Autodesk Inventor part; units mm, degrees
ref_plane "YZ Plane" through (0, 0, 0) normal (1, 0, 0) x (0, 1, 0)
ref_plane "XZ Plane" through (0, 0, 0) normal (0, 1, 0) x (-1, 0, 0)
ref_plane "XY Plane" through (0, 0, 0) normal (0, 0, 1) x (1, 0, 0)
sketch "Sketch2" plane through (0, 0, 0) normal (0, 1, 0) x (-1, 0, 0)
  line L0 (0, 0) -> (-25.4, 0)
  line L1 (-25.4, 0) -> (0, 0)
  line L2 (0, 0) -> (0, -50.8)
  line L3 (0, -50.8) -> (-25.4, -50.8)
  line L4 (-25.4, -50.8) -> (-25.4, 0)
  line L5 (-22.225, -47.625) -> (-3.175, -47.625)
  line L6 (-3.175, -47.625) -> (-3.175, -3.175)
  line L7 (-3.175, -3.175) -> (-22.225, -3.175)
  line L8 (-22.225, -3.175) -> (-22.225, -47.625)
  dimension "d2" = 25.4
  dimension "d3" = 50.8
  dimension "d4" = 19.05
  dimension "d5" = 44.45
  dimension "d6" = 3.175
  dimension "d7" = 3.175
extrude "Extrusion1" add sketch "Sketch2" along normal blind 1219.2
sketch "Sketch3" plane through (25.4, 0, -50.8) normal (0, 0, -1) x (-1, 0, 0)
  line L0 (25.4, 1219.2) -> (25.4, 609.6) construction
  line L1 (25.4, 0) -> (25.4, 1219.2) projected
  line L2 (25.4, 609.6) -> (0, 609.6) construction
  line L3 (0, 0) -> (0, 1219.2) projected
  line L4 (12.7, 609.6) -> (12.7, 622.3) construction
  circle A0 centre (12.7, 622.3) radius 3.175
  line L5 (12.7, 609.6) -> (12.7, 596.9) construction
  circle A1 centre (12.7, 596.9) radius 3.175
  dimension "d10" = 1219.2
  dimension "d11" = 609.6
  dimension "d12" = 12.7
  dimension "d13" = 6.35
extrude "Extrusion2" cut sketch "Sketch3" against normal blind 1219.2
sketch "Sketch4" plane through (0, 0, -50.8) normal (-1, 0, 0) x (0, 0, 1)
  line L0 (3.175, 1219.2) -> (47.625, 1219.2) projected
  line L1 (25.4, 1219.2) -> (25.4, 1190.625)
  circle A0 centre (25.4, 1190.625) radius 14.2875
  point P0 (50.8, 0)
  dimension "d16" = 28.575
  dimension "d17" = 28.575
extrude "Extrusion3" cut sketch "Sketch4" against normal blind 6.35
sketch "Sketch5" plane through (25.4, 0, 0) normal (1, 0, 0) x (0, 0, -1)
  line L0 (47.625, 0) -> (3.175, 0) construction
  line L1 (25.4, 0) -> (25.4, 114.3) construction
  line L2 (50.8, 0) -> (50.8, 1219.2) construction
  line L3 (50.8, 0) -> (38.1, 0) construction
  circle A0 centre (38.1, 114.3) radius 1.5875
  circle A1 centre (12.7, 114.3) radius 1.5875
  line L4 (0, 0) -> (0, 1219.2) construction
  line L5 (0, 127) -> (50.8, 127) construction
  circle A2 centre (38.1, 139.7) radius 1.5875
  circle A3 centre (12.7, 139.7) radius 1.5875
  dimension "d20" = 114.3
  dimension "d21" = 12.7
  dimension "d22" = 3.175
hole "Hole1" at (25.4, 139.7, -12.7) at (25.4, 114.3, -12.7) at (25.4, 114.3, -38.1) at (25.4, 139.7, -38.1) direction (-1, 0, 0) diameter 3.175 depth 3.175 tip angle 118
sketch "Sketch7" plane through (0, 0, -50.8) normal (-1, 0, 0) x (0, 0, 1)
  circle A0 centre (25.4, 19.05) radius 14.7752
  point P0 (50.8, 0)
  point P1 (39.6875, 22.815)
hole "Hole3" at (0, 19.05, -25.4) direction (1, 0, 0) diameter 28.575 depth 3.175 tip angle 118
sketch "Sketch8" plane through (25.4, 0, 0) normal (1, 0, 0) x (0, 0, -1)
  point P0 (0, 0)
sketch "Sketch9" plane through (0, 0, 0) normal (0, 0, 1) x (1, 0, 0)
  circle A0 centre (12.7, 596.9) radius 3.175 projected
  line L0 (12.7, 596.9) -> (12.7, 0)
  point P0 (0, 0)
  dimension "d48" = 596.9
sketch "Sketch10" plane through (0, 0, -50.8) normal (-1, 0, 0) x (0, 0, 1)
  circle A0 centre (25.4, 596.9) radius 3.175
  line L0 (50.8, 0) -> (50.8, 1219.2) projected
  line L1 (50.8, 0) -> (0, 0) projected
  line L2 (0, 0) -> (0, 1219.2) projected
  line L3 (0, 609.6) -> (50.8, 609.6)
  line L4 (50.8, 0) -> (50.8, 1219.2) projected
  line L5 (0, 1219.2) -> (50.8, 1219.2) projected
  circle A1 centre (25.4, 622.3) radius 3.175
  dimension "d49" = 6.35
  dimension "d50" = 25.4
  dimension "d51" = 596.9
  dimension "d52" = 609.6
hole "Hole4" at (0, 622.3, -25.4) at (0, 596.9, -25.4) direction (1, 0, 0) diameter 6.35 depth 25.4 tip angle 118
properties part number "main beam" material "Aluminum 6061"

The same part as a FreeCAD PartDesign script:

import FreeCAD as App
import Part
import Sketcher

V = App.Vector
Q = App.Units.Quantity

doc = App.newDocument("Part")
params = doc.addObject("Spreadsheet::Sheet", "Params")
for row, (alias, value) in enumerate([
    ("sketch1_width", "1 in"),
    ("sketch1_height", "2 in"),
    ("sketch1_width2", "0.75 in"),
    ("sketch1_height2", "1.75 in"),
    ("pad1_length", "48 in"),
    ("sketch2_diameter", "0.25 in"),
    ("pocket1_length", "48 in"),
    ("sketch3_diameter", "1.125 in"),
    ("pocket2_length", "0.25 in"),
    ("sketch4_diameter", "0.125 in"),
    ("hole_diameter", "0.125 in"),
    ("hole_depth", "0.125 in"),
    ("sketch5_diameter", "1.125 in"),
    ("hole2_diameter", "1.125 in"),
    ("hole2_depth", "0.125 in"),
    ("sketch6_diameter", "0.25 in"),
    ("hole3_diameter", "0.25 in"),
    ("hole3_depth", "1 in"),
], start=1):
    params.set(f"A{row}", alias)
    params.set(f"B{row}", "=" + value)
    params.setAlias(f"B{row}", alias)

body = doc.addObject("PartDesign::Body", "Body")

# Sketch on XZ plane
sketch1 = body.newObject("Sketcher::SketchObject", "Sketch")
sketch1.AttachmentSupport = (doc.getObject("XZ_Plane"), [""])
sketch1.MapMode = "FlatFace"
sketch1.addGeometry([
    Part.LineSegment(V(0, -51, 0), V(0, 0, 0)),  # 0
    Part.LineSegment(V(0, 0, 0), V(25, 0, 0)),  # 1
    Part.LineSegment(V(25, 0, 0), V(25, -51, 0)),  # 2
    Part.LineSegment(V(25, -51, 0), V(0, -51, 0)),  # 3
    Part.LineSegment(V(3, -48, 0), V(22, -48, 0)),  # 4
    Part.LineSegment(V(22, -48, 0), V(22, -3, 0)),  # 5
    Part.LineSegment(V(22, -3, 0), V(3, -3, 0)),  # 6
    Part.LineSegment(V(3, -3, 0), V(3, -48, 0)),  # 7
], False)
sketch1.addConstraint([
    Sketcher.Constraint("Coincident", 0, 2, 1, 1),
    Sketcher.Constraint("Coincident", 1, 2, 2, 1),
    Sketcher.Constraint("Coincident", 2, 2, 3, 1),
    Sketcher.Constraint("Coincident", 3, 2, 0, 1),
    Sketcher.Constraint("Coincident", 4, 2, 5, 1),
    Sketcher.Constraint("Coincident", 5, 2, 6, 1),
    Sketcher.Constraint("Coincident", 6, 2, 7, 1),
    Sketcher.Constraint("Coincident", 7, 2, 4, 1),
    Sketcher.Constraint("Vertical", 0),
    Sketcher.Constraint("Horizontal", 1),
    Sketcher.Constraint("Vertical", 2),
    Sketcher.Constraint("Horizontal", 3),
    Sketcher.Constraint("Horizontal", 4),
    Sketcher.Constraint("Vertical", 5),
    Sketcher.Constraint("Horizontal", 6),
    Sketcher.Constraint("Vertical", 7),
    Sketcher.Constraint("Coincident", 0, 2, -1, 1),
    Sketcher.Constraint("DistanceX", 1, 1, 1, 2, Q("1 in")),
    Sketcher.Constraint("DistanceY", 0, 1, 0, 2, Q("2 in")),
    Sketcher.Constraint("DistanceX", 4, 1, 4, 2, Q("0.75 in")),
    Sketcher.Constraint("DistanceY", 5, 1, 5, 2, Q("1.75 in")),
    Sketcher.Constraint("DistanceY", 5, 2, -1, 1, Q("0.125 in")),
    Sketcher.Constraint("DistanceX", -1, 1, 6, 2, Q("0.125 in")),
])
sketch1.setExpression("Constraints[17]", "Params.sketch1_width")
sketch1.setExpression("Constraints[18]", "Params.sketch1_height")
sketch1.setExpression("Constraints[19]", "Params.sketch1_width2")
sketch1.setExpression("Constraints[20]", "Params.sketch1_height2")
pad1 = body.newObject("PartDesign::Pad", "Pad")
pad1.Profile = sketch1
pad1.setExpression("Length", "Params.pad1_length")
pad1.Reversed = True

# Sketch on XY plane
sketch2 = body.newObject("Sketcher::SketchObject", "Sketch001")
sketch2.AttachmentSupport = (doc.getObject("XY_Plane"), [""])
sketch2.MapMode = "FlatFace"
sketch2.AttachmentOffset = App.Placement(V(0, 0, -2 * 25.4), App.Rotation())
sketch2.addGeometry([
    Part.Circle(V(12.7, 622.3, 0), V(0, 0, 1), 3.2),
    Part.Circle(V(12.7, 596.9, 0), V(0, 0, 1), 3.2),
], False)
sketch2.addConstraint([
    Sketcher.Constraint("Equal", 0, 1),
    Sketcher.Constraint("Vertical", 0, 3, 1, 3),
    Sketcher.Constraint("Diameter", 0, Q("0.25 in")),
    Sketcher.Constraint("DistanceX", -1, 1, 0, 3, Q("0.5 in")),
    Sketcher.Constraint("DistanceY", 1, 3, 0, 3, Q("1 in")),
    Sketcher.Constraint("DistanceY", -1, 1, 0, 3, Q("24.5 in")),
])
sketch2.setExpression("Constraints[2]", "Params.sketch2_diameter")
pocket1 = body.newObject("PartDesign::Pocket", "Pocket")
pocket1.Profile = sketch2
pocket1.setExpression("Length", "Params.pocket1_length")
pocket1.Reversed = True

# Sketch on YZ plane
sketch3 = body.newObject("Sketcher::SketchObject", "Sketch002")
sketch3.AttachmentSupport = (doc.getObject("YZ_Plane"), [""])
sketch3.MapMode = "FlatFace"
sketch3.addGeometry(Part.Circle(V(1191, -25, 0), V(0, 0, 1), 14), False)
sketch3.addConstraint([
    Sketcher.Constraint("Diameter", 0, Q("1.125 in")),
    Sketcher.Constraint("DistanceY", 0, 3, -1, 1, Q("1 in")),
    Sketcher.Constraint("DistanceX", -1, 1, 0, 3, Q("46.875 in")),
])
sketch3.setExpression("Constraints[0]", "Params.sketch3_diameter")
pocket2 = body.newObject("PartDesign::Pocket", "Pocket001")
pocket2.Profile = sketch3
pocket2.setExpression("Length", "Params.pocket2_length")
pocket2.Reversed = True

# Sketch on YZ plane
sketch4 = body.newObject("Sketcher::SketchObject", "Sketch003")
sketch4.AttachmentSupport = (doc.getObject("YZ_Plane"), [""])
sketch4.MapMode = "FlatFace"
sketch4.AttachmentOffset = App.Placement(V(0, 0, 1 * 25.4), App.Rotation())
sketch4.addGeometry([
    Part.Circle(V(139.7, -12.7, 0), V(0, 0, 1), 1.6),
    Part.Circle(V(114.3, -12.7, 0), V(0, 0, 1), 1.6),
    Part.Circle(V(114.3, -38.1, 0), V(0, 0, 1), 1.6),
    Part.Circle(V(139.7, -38.1, 0), V(0, 0, 1), 1.6),
], False)
sketch4.addConstraint([
    Sketcher.Constraint("Equal", 0, 1),
    Sketcher.Constraint("Equal", 1, 2),
    Sketcher.Constraint("Equal", 2, 3),
    Sketcher.Constraint("Horizontal", 0, 3, 1, 3),
    Sketcher.Constraint("Horizontal", 2, 3, 3, 3),
    Sketcher.Constraint("Vertical", 1, 3, 2, 3),
    Sketcher.Constraint("Vertical", 0, 3, 3, 3),
    Sketcher.Constraint("Diameter", 0, Q("0.125 in")),
    Sketcher.Constraint("DistanceX", 1, 3, 0, 3, Q("1 in")),
    Sketcher.Constraint("DistanceY", 2, 3, 1, 3, Q("1 in")),
    Sketcher.Constraint("DistanceX", -1, 1, 0, 3, Q("5.5 in")),
    Sketcher.Constraint("DistanceY", 0, 3, -1, 1, Q("0.5 in")),
])
sketch4.setExpression("Constraints[7]", "Params.sketch4_diameter")
doc.recompute()
hole = body.newObject("PartDesign::Hole", "Hole")
hole.Profile = sketch4
hole.ThreadType = "None"
hole.setExpression("Diameter", "Params.hole_diameter")
hole.DepthType = "Dimension"
hole.setExpression("Depth", "Params.hole_depth")
hole.DrillPoint = "Angled"
hole.DrillPointAngle = 118

# Sketch on YZ plane
sketch5 = body.newObject("Sketcher::SketchObject", "Sketch004")
sketch5.AttachmentSupport = (doc.getObject("YZ_Plane"), [""])
sketch5.MapMode = "FlatFace"
sketch5.addGeometry(Part.Circle(V(19, -25, 0), V(0, 0, 1), 14), False)
sketch5.addConstraint([
    Sketcher.Constraint("Diameter", 0, Q("1.125 in")),
    Sketcher.Constraint("DistanceY", 0, 3, -1, 1, Q("1 in")),
    Sketcher.Constraint("DistanceX", -1, 1, 0, 3, Q("0.75 in")),
])
sketch5.setExpression("Constraints[0]", "Params.sketch5_diameter")
doc.recompute()
hole2 = body.newObject("PartDesign::Hole", "Hole001")
hole2.Profile = sketch5
hole2.ThreadType = "None"
hole2.setExpression("Diameter", "Params.hole2_diameter")
hole2.DepthType = "Dimension"
hole2.setExpression("Depth", "Params.hole2_depth")
hole2.DrillPoint = "Angled"
hole2.DrillPointAngle = 118
hole2.Reversed = True

# Sketch on YZ plane
sketch6 = body.newObject("Sketcher::SketchObject", "Sketch005")
sketch6.AttachmentSupport = (doc.getObject("YZ_Plane"), [""])
sketch6.MapMode = "FlatFace"
sketch6.addGeometry([
    Part.Circle(V(622.3, -25.4, 0), V(0, 0, 1), 3.2),
    Part.Circle(V(596.9, -25.4, 0), V(0, 0, 1), 3.2),
], False)
sketch6.addConstraint([
    Sketcher.Constraint("Equal", 0, 1),
    Sketcher.Constraint("Horizontal", 0, 3, 1, 3),
    Sketcher.Constraint("Diameter", 0, Q("0.25 in")),
    Sketcher.Constraint("DistanceY", 0, 3, -1, 1, Q("1 in")),
    Sketcher.Constraint("DistanceX", 1, 3, 0, 3, Q("1 in")),
    Sketcher.Constraint("DistanceX", -1, 1, 0, 3, Q("24.5 in")),
])
sketch6.setExpression("Constraints[2]", "Params.sketch6_diameter")
doc.recompute()
hole3 = body.newObject("PartDesign::Hole", "Hole002")
hole3.Profile = sketch6
hole3.ThreadType = "None"
hole3.setExpression("Diameter", "Params.hole3_diameter")
hole3.DepthType = "Dimension"
hole3.setExpression("Depth", "Params.hole3_depth")
hole3.DrillPoint = "Angled"
hole3.DrillPointAngle = 118
hole3.Reversed = True

doc.recompute()
